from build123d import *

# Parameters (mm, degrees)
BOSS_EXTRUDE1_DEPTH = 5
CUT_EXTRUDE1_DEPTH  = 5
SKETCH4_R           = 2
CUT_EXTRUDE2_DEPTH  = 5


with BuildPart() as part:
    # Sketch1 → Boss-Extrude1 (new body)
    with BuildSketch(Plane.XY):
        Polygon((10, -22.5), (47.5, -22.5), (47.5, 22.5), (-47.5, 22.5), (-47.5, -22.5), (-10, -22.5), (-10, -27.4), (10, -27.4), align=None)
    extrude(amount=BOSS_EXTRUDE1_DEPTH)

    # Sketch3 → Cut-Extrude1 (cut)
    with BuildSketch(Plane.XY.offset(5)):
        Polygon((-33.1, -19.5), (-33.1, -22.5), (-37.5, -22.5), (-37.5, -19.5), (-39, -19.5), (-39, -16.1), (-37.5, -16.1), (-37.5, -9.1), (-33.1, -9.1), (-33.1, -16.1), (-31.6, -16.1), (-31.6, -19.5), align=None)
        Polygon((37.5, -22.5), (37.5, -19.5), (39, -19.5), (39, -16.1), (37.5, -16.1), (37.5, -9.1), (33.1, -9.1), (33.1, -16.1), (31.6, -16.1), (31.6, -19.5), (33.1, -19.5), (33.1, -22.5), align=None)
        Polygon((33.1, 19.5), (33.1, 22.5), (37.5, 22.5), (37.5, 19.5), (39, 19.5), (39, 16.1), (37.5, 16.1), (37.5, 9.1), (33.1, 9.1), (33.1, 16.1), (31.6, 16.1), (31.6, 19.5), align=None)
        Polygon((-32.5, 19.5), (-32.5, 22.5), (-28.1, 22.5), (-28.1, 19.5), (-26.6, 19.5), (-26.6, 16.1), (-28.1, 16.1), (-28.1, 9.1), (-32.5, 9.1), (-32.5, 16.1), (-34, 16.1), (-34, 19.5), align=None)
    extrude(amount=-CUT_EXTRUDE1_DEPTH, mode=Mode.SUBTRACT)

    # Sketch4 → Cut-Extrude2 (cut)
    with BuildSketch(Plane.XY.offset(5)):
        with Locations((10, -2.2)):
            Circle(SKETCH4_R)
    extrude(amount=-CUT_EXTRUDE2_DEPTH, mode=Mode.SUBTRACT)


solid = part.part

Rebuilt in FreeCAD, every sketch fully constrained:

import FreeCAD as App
import Part
import Sketcher

doc = App.newDocument("Part")
body = doc.addObject("PartDesign::Body", "Body")

# Sketch on XY plane
sketch1 = doc.addObject("Sketcher::SketchObject", "Sketch")
body.addObject(sketch1)
sketch1.AttachmentSupport = (doc.XY_Plane, [""])
sketch1.MapMode = "FlatFace"
sketch1.addGeometry([
    Part.LineSegment(App.Vector(10, -22.5, 0), App.Vector(47.5, -22.5, 0)),  # 0
    Part.LineSegment(App.Vector(47.5, -22.5, 0), App.Vector(47.5, 22.5, 0)),  # 1
    Part.LineSegment(App.Vector(47.5, 22.5, 0), App.Vector(-47.5, 22.5, 0)),  # 2
    Part.LineSegment(App.Vector(-47.5, 22.5, 0), App.Vector(-47.5, -22.5, 0)),  # 3
    Part.LineSegment(App.Vector(-47.5, -22.5, 0), App.Vector(-10, -22.5, 0)),  # 4
    Part.LineSegment(App.Vector(-10, -22.5, 0), App.Vector(-10, -27.4, 0)),  # 5
    Part.LineSegment(App.Vector(-10, -27.4, 0), App.Vector(10, -27.4, 0)),  # 6
    Part.LineSegment(App.Vector(10, -27.4, 0), App.Vector(10, -22.5, 0)),  # 7
], False)
sketch1.addConstraint([
    Sketcher.Constraint("Coincident", 0, 2, 1, 1),
    Sketcher.Constraint("Coincident", 1, 2, 2, 1),
    Sketcher.Constraint("Coincident", 2, 2, 3, 1),
    Sketcher.Constraint("Coincident", 3, 2, 4, 1),
    Sketcher.Constraint("Coincident", 4, 2, 5, 1),
    Sketcher.Constraint("Coincident", 5, 2, 6, 1),
    Sketcher.Constraint("Coincident", 6, 2, 7, 1),
    Sketcher.Constraint("Coincident", 7, 2, 0, 1),
    Sketcher.Constraint("Horizontal", 0),
    Sketcher.Constraint("Vertical", 1),
    Sketcher.Constraint("Horizontal", 2),
    Sketcher.Constraint("Vertical", 3),
    Sketcher.Constraint("Horizontal", 4),
    Sketcher.Constraint("Vertical", 5),
    Sketcher.Constraint("Horizontal", 6),
    Sketcher.Constraint("Vertical", 7),
    Sketcher.Constraint("Symmetric", 0, 2, 2, 2, -1, 1),
    Sketcher.Constraint("Symmetric", 4, 2, 7, 2, -2),
    Sketcher.Constraint("DistanceX", 2, 2, 2, 1, 95.0),
    Sketcher.Constraint("DistanceX", 6, 1, 6, 2, 20.0),
    Sketcher.Constraint("DistanceY", 1, 1, 1, 2, 45.0),
    Sketcher.Constraint("DistanceY", 5, 2, 5, 1, 4.9),
])
pad1 = doc.addObject("PartDesign::Pad", "Pad")
body.addObject(pad1)
pad1.Profile = sketch1
pad1.Length = 5

# Sketch on XY plane
sketch2 = doc.addObject("Sketcher::SketchObject", "Sketch001")
body.addObject(sketch2)
sketch2.AttachmentSupport = (doc.XY_Plane, [""])
sketch2.MapMode = "FlatFace"
sketch2.AttachmentOffset = App.Placement(App.Vector(0, 0, 5), App.Rotation())
sketch2.addGeometry([
    Part.LineSegment(App.Vector(-33.1, -22.5, 0), App.Vector(-33.1, -19.5, 0)),  # 0
    Part.LineSegment(App.Vector(-33.1, -19.5, 0), App.Vector(-31.6, -19.5, 0)),  # 1
    Part.LineSegment(App.Vector(-31.6, -19.5, 0), App.Vector(-31.6, -16.1, 0)),  # 2
    Part.LineSegment(App.Vector(-31.6, -16.1, 0), App.Vector(-33.1, -16.1, 0)),  # 3
    Part.LineSegment(App.Vector(-33.1, -16.1, 0), App.Vector(-33.1, -9.1, 0)),  # 4
    Part.LineSegment(App.Vector(-33.1, -9.1, 0), App.Vector(-37.5, -9.1, 0)),  # 5
    Part.LineSegment(App.Vector(-37.5, -9.1, 0), App.Vector(-37.5, -16.1, 0)),  # 6
    Part.LineSegment(App.Vector(-37.5, -16.1, 0), App.Vector(-39, -16.1, 0)),  # 7
    Part.LineSegment(App.Vector(-39, -16.1, 0), App.Vector(-39, -19.5, 0)),  # 8
    Part.LineSegment(App.Vector(-39, -19.5, 0), App.Vector(-37.5, -19.5, 0)),  # 9
    Part.LineSegment(App.Vector(-37.5, -19.5, 0), App.Vector(-37.5, -22.5, 0)),  # 10
    Part.LineSegment(App.Vector(-37.5, -22.5, 0), App.Vector(-33.1, -22.5, 0)),  # 11
    Part.LineSegment(App.Vector(37.5, -22.5, 0), App.Vector(37.5, -19.5, 0)),  # 12
    Part.LineSegment(App.Vector(37.5, -19.5, 0), App.Vector(39, -19.5, 0)),  # 13
    Part.LineSegment(App.Vector(39, -19.5, 0), App.Vector(39, -16.1, 0)),  # 14
    Part.LineSegment(App.Vector(39, -16.1, 0), App.Vector(37.5, -16.1, 0)),  # 15
    Part.LineSegment(App.Vector(37.5, -16.1, 0), App.Vector(37.5, -9.1, 0)),  # 16
    Part.LineSegment(App.Vector(37.5, -9.1, 0), App.Vector(33.1, -9.1, 0)),  # 17
    Part.LineSegment(App.Vector(33.1, -9.1, 0), App.Vector(33.1, -16.1, 0)),  # 18
    Part.LineSegment(App.Vector(33.1, -16.1, 0), App.Vector(31.6, -16.1, 0)),  # 19
    Part.LineSegment(App.Vector(31.6, -16.1, 0), App.Vector(31.6, -19.5, 0)),  # 20
    Part.LineSegment(App.Vector(31.6, -19.5, 0), App.Vector(33.1, -19.5, 0)),  # 21
    Part.LineSegment(App.Vector(33.1, -19.5, 0), App.Vector(33.1, -22.5, 0)),  # 22
    Part.LineSegment(App.Vector(33.1, -22.5, 0), App.Vector(37.5, -22.5, 0)),  # 23
    Part.LineSegment(App.Vector(33.1, 22.5, 0), App.Vector(33.1, 19.5, 0)),  # 24
    Part.LineSegment(App.Vector(33.1, 19.5, 0), App.Vector(31.6, 19.5, 0)),  # 25
    Part.LineSegment(App.Vector(31.6, 19.5, 0), App.Vector(31.6, 16.1, 0)),  # 26
    Part.LineSegment(App.Vector(31.6, 16.1, 0), App.Vector(33.1, 16.1, 0)),  # 27
    Part.LineSegment(App.Vector(33.1, 16.1, 0), App.Vector(33.1, 9.1, 0)),  # 28
    Part.LineSegment(App.Vector(33.1, 9.1, 0), App.Vector(37.5, 9.1, 0)),  # 29
    Part.LineSegment(App.Vector(37.5, 9.1, 0), App.Vector(37.5, 16.1, 0)),  # 30
    Part.LineSegment(App.Vector(37.5, 16.1, 0), App.Vector(39, 16.1, 0)),  # 31
    Part.LineSegment(App.Vector(39, 16.1, 0), App.Vector(39, 19.5, 0)),  # 32
    Part.LineSegment(App.Vector(39, 19.5, 0), App.Vector(37.5, 19.5, 0)),  # 33
    Part.LineSegment(App.Vector(37.5, 19.5, 0), App.Vector(37.5, 22.5, 0)),  # 34
    Part.LineSegment(App.Vector(37.5, 22.5, 0), App.Vector(33.1, 22.5, 0)),  # 35
    Part.LineSegment(App.Vector(-32.5, 22.5, 0), App.Vector(-32.5, 19.5, 0)),  # 36
    Part.LineSegment(App.Vector(-32.5, 19.5, 0), App.Vector(-34, 19.5, 0)),  # 37
    Part.LineSegment(App.Vector(-34, 19.5, 0), App.Vector(-34, 16.1, 0)),  # 38
    Part.LineSegment(App.Vector(-34, 16.1, 0), App.Vector(-32.5, 16.1, 0)),  # 39
    Part.LineSegment(App.Vector(-32.5, 16.1, 0), App.Vector(-32.5, 9.1, 0)),  # 40
    Part.LineSegment(App.Vector(-32.5, 9.1, 0), App.Vector(-28.1, 9.1, 0)),  # 41
    Part.LineSegment(App.Vector(-28.1, 9.1, 0), App.Vector(-28.1, 16.1, 0)),  # 42
    Part.LineSegment(App.Vector(-28.1, 16.1, 0), App.Vector(-26.6, 16.1, 0)),  # 43
    Part.LineSegment(App.Vector(-26.6, 16.1, 0), App.Vector(-26.6, 19.5, 0)),  # 44
    Part.LineSegment(App.Vector(-26.6, 19.5, 0), App.Vector(-28.1, 19.5, 0)),  # 45
    Part.LineSegment(App.Vector(-28.1, 19.5, 0), App.Vector(-28.1, 22.5, 0)),  # 46
    Part.LineSegment(App.Vector(-28.1, 22.5, 0), App.Vector(-32.5, 22.5, 0)),  # 47
], False)
sketch2.addConstraint([
    Sketcher.Constraint("Coincident", 0, 2, 1, 1),
    Sketcher.Constraint("Coincident", 1, 2, 2, 1),
    Sketcher.Constraint("Coincident", 2, 2, 3, 1),
    Sketcher.Constraint("Coincident", 3, 2, 4, 1),
    Sketcher.Constraint("Coincident", 4, 2, 5, 1),
    Sketcher.Constraint("Coincident", 5, 2, 6, 1),
    Sketcher.Constraint("Coincident", 6, 2, 7, 1),
    Sketcher.Constraint("Coincident", 7, 2, 8, 1),
    Sketcher.Constraint("Coincident", 8, 2, 9, 1),
    Sketcher.Constraint("Coincident", 9, 2, 10, 1),
    Sketcher.Constraint("Coincident", 10, 2, 11, 1),
    Sketcher.Constraint("Coincident", 11, 2, 0, 1),
    Sketcher.Constraint("Coincident", 12, 2, 13, 1),
    Sketcher.Constraint("Coincident", 13, 2, 14, 1),
    Sketcher.Constraint("Coincident", 14, 2, 15, 1),
    Sketcher.Constraint("Coincident", 15, 2, 16, 1),
    Sketcher.Constraint("Coincident", 16, 2, 17, 1),
    Sketcher.Constraint("Coincident", 17, 2, 18, 1),
    Sketcher.Constraint("Coincident", 18, 2, 19, 1),
    Sketcher.Constraint("Coincident", 19, 2, 20, 1),
    Sketcher.Constraint("Coincident", 20, 2, 21, 1),
    Sketcher.Constraint("Coincident", 21, 2, 22, 1),
    Sketcher.Constraint("Coincident", 22, 2, 23, 1),
    Sketcher.Constraint("Coincident", 23, 2, 12, 1),
    Sketcher.Constraint("Coincident", 24, 2, 25, 1),
    Sketcher.Constraint("Coincident", 25, 2, 26, 1),
    Sketcher.Constraint("Coincident", 26, 2, 27, 1),
    Sketcher.Constraint("Coincident", 27, 2, 28, 1),
    Sketcher.Constraint("Coincident", 28, 2, 29, 1),
    Sketcher.Constraint("Coincident", 29, 2, 30, 1),
    Sketcher.Constraint("Coincident", 30, 2, 31, 1),
    Sketcher.Constraint("Coincident", 31, 2, 32, 1),
    Sketcher.Constraint("Coincident", 32, 2, 33, 1),
    Sketcher.Constraint("Coincident", 33, 2, 34, 1),
    Sketcher.Constraint("Coincident", 34, 2, 35, 1),
    Sketcher.Constraint("Coincident", 35, 2, 24, 1),
    Sketcher.Constraint("Coincident", 36, 2, 37, 1),
    Sketcher.Constraint("Coincident", 37, 2, 38, 1),
    Sketcher.Constraint("Coincident", 38, 2, 39, 1),
    Sketcher.Constraint("Coincident", 39, 2, 40, 1),
    Sketcher.Constraint("Coincident", 40, 2, 41, 1),
    Sketcher.Constraint("Coincident", 41, 2, 42, 1),
    Sketcher.Constraint("Coincident", 42, 2, 43, 1),
    Sketcher.Constraint("Coincident", 43, 2, 44, 1),
    Sketcher.Constraint("Coincident", 44, 2, 45, 1),
    Sketcher.Constraint("Coincident", 45, 2, 46, 1),
    Sketcher.Constraint("Coincident", 46, 2, 47, 1),
    Sketcher.Constraint("Coincident", 47, 2, 36, 1),
    Sketcher.Constraint("Vertical", 0),
    Sketcher.Constraint("Horizontal", 1),
    Sketcher.Constraint("Vertical", 2),
    Sketcher.Constraint("Horizontal", 3),
    Sketcher.Constraint("Vertical", 4),
    Sketcher.Constraint("Horizontal", 5),
    Sketcher.Constraint("Vertical", 6),
    Sketcher.Constraint("Horizontal", 7),
    Sketcher.Constraint("Vertical", 8),
    Sketcher.Constraint("Horizontal", 9),
    Sketcher.Constraint("Vertical", 10),
    Sketcher.Constraint("Horizontal", 11),
    Sketcher.Constraint("Vertical", 12),
    Sketcher.Constraint("Horizontal", 13),
    Sketcher.Constraint("Vertical", 14),
    Sketcher.Constraint("Horizontal", 15),
    Sketcher.Constraint("Vertical", 16),
    Sketcher.Constraint("Horizontal", 17),
    Sketcher.Constraint("Vertical", 18),
    Sketcher.Constraint("Horizontal", 19),
    Sketcher.Constraint("Vertical", 20),
    Sketcher.Constraint("Horizontal", 21),
    Sketcher.Constraint("Vertical", 22),
    Sketcher.Constraint("Horizontal", 23),
    Sketcher.Constraint("Vertical", 24),
    Sketcher.Constraint("Horizontal", 25),
    Sketcher.Constraint("Vertical", 26),
    Sketcher.Constraint("Horizontal", 27),
    Sketcher.Constraint("Vertical", 28),
    Sketcher.Constraint("Horizontal", 29),
    Sketcher.Constraint("Vertical", 30),
    Sketcher.Constraint("Horizontal", 31),
    Sketcher.Constraint("Vertical", 32),
    Sketcher.Constraint("Horizontal", 33),
    Sketcher.Constraint("Vertical", 34),
    Sketcher.Constraint("Horizontal", 35),
    Sketcher.Constraint("Vertical", 36),
    Sketcher.Constraint("Horizontal", 37),
    Sketcher.Constraint("Vertical", 38),
    Sketcher.Constraint("Horizontal", 39),
    Sketcher.Constraint("Vertical", 40),
    Sketcher.Constraint("Horizontal", 41),
    Sketcher.Constraint("Vertical", 42),
    Sketcher.Constraint("Horizontal", 43),
    Sketcher.Constraint("Vertical", 44),
    Sketcher.Constraint("Horizontal", 45),
    Sketcher.Constraint("Vertical", 46),
    Sketcher.Constraint("Horizontal", 47),
    Sketcher.Constraint("Symmetric", 0, 2, 24, 2, -1, 1),
    Sketcher.Constraint("Symmetric", 2, 2, 26, 2, -1, 1),
    Sketcher.Constraint("Symmetric", 4, 2, 28, 2, -1, 1),
    Sketcher.Constraint("Symmetric", 6, 2, 30, 2, -1, 1),
    Sketcher.Constraint("Symmetric", 8, 2, 32, 2, -1, 1),
    Sketcher.Constraint("Symmetric", 10, 2, 34, 2, -1, 1),
    Sketcher.Constraint("Symmetric", 9, 2, 12, 2, -2),
    Sketcher.Constraint("Symmetric", 7, 2, 14, 2, -2),
    Sketcher.Constraint("Symmetric", 5, 2, 16, 2, -2),
    Sketcher.Constraint("Symmetric", 3, 2, 18, 2, -2),
    Sketcher.Constraint("Symmetric", 1, 2, 20, 2, -2),
    Sketcher.Constraint("Symmetric", 11, 2, 22, 2, -2),
    Sketcher.Constraint("Horizontal", 3, 2, 6, 2),
    Sketcher.Constraint("Horizontal", 1, 2, 8, 2),
    Sketcher.Constraint("Horizontal", 33, 2, 36, 2),
    Sketcher.Constraint("Horizontal", 31, 2, 38, 2),
    Sketcher.Constraint("Horizontal", 29, 2, 40, 2),
    Sketcher.Constraint("Horizontal", 39, 2, 42, 2),
    Sketcher.Constraint("Horizontal", 37, 2, 44, 2),
    Sketcher.Constraint("Horizontal", 35, 2, 46, 2),
    Sketcher.Constraint("Vertical", 0, 2, 3, 2),
    Sketcher.Constraint("Vertical", 6, 2, 9, 2),
    Sketcher.Constraint("Vertical", 36, 2, 39, 2),
    Sketcher.Constraint("Vertical", 42, 2, 45, 2),
    Sketcher.Constraint("Equal", 3, 7),
    Sketcher.Constraint("Equal", 33, 37),
    Sketcher.Constraint("Equal", 35, 41),
    Sketcher.Constraint("Equal", 39, 43),
    Sketcher.Constraint("DistanceY", 0, 1, 0, 2, 3.0),
    Sketcher.Constraint("DistanceY", 4, 1, 4, 2, 7.0),
    Sketcher.Constraint("DistanceX", 1, 1, 1, 2, 1.5),
    Sketcher.Constraint("DistanceX", 5, 2, 5, 1, 4.4),
    Sketcher.Constraint("DistanceY", 2, 1, 2, 2, 3.4),
    Sketcher.Constraint("DistanceX", 7, 2, -1, 1, 39.0),
    Sketcher.Constraint("DistanceX", 37, 2, -1, 1, 34.0),
    Sketcher.Constraint("DistanceY", 0, 2, -1, 1, 19.5),
])
pocket1 = doc.addObject("PartDesign::Pocket", "Pocket")
body.addObject(pocket1)
pocket1.Profile = sketch2
pocket1.Length = 5

# Sketch on XY plane
sketch3 = doc.addObject("Sketcher::SketchObject", "Sketch002")
body.addObject(sketch3)
sketch3.AttachmentSupport = (doc.XY_Plane, [""])
sketch3.MapMode = "FlatFace"
sketch3.AttachmentOffset = App.Placement(App.Vector(0, 0, 5), App.Rotation())
sketch3.addGeometry(Part.Circle(App.Vector(10, -2.2, 0), App.Vector(0, 0, 1), 2), False)
sketch3.addConstraint([
    Sketcher.Constraint("Diameter", 0, 4.0),
    Sketcher.Constraint("DistanceX", -1, 1, 0, 3, 10.0),
    Sketcher.Constraint("DistanceY", 0, 3, -1, 1, 2.2),
])
pocket2 = doc.addObject("PartDesign::Pocket", "Pocket001")
body.addObject(pocket2)
pocket2.Profile = sketch3
pocket2.Length = 5

doc.recompute()
